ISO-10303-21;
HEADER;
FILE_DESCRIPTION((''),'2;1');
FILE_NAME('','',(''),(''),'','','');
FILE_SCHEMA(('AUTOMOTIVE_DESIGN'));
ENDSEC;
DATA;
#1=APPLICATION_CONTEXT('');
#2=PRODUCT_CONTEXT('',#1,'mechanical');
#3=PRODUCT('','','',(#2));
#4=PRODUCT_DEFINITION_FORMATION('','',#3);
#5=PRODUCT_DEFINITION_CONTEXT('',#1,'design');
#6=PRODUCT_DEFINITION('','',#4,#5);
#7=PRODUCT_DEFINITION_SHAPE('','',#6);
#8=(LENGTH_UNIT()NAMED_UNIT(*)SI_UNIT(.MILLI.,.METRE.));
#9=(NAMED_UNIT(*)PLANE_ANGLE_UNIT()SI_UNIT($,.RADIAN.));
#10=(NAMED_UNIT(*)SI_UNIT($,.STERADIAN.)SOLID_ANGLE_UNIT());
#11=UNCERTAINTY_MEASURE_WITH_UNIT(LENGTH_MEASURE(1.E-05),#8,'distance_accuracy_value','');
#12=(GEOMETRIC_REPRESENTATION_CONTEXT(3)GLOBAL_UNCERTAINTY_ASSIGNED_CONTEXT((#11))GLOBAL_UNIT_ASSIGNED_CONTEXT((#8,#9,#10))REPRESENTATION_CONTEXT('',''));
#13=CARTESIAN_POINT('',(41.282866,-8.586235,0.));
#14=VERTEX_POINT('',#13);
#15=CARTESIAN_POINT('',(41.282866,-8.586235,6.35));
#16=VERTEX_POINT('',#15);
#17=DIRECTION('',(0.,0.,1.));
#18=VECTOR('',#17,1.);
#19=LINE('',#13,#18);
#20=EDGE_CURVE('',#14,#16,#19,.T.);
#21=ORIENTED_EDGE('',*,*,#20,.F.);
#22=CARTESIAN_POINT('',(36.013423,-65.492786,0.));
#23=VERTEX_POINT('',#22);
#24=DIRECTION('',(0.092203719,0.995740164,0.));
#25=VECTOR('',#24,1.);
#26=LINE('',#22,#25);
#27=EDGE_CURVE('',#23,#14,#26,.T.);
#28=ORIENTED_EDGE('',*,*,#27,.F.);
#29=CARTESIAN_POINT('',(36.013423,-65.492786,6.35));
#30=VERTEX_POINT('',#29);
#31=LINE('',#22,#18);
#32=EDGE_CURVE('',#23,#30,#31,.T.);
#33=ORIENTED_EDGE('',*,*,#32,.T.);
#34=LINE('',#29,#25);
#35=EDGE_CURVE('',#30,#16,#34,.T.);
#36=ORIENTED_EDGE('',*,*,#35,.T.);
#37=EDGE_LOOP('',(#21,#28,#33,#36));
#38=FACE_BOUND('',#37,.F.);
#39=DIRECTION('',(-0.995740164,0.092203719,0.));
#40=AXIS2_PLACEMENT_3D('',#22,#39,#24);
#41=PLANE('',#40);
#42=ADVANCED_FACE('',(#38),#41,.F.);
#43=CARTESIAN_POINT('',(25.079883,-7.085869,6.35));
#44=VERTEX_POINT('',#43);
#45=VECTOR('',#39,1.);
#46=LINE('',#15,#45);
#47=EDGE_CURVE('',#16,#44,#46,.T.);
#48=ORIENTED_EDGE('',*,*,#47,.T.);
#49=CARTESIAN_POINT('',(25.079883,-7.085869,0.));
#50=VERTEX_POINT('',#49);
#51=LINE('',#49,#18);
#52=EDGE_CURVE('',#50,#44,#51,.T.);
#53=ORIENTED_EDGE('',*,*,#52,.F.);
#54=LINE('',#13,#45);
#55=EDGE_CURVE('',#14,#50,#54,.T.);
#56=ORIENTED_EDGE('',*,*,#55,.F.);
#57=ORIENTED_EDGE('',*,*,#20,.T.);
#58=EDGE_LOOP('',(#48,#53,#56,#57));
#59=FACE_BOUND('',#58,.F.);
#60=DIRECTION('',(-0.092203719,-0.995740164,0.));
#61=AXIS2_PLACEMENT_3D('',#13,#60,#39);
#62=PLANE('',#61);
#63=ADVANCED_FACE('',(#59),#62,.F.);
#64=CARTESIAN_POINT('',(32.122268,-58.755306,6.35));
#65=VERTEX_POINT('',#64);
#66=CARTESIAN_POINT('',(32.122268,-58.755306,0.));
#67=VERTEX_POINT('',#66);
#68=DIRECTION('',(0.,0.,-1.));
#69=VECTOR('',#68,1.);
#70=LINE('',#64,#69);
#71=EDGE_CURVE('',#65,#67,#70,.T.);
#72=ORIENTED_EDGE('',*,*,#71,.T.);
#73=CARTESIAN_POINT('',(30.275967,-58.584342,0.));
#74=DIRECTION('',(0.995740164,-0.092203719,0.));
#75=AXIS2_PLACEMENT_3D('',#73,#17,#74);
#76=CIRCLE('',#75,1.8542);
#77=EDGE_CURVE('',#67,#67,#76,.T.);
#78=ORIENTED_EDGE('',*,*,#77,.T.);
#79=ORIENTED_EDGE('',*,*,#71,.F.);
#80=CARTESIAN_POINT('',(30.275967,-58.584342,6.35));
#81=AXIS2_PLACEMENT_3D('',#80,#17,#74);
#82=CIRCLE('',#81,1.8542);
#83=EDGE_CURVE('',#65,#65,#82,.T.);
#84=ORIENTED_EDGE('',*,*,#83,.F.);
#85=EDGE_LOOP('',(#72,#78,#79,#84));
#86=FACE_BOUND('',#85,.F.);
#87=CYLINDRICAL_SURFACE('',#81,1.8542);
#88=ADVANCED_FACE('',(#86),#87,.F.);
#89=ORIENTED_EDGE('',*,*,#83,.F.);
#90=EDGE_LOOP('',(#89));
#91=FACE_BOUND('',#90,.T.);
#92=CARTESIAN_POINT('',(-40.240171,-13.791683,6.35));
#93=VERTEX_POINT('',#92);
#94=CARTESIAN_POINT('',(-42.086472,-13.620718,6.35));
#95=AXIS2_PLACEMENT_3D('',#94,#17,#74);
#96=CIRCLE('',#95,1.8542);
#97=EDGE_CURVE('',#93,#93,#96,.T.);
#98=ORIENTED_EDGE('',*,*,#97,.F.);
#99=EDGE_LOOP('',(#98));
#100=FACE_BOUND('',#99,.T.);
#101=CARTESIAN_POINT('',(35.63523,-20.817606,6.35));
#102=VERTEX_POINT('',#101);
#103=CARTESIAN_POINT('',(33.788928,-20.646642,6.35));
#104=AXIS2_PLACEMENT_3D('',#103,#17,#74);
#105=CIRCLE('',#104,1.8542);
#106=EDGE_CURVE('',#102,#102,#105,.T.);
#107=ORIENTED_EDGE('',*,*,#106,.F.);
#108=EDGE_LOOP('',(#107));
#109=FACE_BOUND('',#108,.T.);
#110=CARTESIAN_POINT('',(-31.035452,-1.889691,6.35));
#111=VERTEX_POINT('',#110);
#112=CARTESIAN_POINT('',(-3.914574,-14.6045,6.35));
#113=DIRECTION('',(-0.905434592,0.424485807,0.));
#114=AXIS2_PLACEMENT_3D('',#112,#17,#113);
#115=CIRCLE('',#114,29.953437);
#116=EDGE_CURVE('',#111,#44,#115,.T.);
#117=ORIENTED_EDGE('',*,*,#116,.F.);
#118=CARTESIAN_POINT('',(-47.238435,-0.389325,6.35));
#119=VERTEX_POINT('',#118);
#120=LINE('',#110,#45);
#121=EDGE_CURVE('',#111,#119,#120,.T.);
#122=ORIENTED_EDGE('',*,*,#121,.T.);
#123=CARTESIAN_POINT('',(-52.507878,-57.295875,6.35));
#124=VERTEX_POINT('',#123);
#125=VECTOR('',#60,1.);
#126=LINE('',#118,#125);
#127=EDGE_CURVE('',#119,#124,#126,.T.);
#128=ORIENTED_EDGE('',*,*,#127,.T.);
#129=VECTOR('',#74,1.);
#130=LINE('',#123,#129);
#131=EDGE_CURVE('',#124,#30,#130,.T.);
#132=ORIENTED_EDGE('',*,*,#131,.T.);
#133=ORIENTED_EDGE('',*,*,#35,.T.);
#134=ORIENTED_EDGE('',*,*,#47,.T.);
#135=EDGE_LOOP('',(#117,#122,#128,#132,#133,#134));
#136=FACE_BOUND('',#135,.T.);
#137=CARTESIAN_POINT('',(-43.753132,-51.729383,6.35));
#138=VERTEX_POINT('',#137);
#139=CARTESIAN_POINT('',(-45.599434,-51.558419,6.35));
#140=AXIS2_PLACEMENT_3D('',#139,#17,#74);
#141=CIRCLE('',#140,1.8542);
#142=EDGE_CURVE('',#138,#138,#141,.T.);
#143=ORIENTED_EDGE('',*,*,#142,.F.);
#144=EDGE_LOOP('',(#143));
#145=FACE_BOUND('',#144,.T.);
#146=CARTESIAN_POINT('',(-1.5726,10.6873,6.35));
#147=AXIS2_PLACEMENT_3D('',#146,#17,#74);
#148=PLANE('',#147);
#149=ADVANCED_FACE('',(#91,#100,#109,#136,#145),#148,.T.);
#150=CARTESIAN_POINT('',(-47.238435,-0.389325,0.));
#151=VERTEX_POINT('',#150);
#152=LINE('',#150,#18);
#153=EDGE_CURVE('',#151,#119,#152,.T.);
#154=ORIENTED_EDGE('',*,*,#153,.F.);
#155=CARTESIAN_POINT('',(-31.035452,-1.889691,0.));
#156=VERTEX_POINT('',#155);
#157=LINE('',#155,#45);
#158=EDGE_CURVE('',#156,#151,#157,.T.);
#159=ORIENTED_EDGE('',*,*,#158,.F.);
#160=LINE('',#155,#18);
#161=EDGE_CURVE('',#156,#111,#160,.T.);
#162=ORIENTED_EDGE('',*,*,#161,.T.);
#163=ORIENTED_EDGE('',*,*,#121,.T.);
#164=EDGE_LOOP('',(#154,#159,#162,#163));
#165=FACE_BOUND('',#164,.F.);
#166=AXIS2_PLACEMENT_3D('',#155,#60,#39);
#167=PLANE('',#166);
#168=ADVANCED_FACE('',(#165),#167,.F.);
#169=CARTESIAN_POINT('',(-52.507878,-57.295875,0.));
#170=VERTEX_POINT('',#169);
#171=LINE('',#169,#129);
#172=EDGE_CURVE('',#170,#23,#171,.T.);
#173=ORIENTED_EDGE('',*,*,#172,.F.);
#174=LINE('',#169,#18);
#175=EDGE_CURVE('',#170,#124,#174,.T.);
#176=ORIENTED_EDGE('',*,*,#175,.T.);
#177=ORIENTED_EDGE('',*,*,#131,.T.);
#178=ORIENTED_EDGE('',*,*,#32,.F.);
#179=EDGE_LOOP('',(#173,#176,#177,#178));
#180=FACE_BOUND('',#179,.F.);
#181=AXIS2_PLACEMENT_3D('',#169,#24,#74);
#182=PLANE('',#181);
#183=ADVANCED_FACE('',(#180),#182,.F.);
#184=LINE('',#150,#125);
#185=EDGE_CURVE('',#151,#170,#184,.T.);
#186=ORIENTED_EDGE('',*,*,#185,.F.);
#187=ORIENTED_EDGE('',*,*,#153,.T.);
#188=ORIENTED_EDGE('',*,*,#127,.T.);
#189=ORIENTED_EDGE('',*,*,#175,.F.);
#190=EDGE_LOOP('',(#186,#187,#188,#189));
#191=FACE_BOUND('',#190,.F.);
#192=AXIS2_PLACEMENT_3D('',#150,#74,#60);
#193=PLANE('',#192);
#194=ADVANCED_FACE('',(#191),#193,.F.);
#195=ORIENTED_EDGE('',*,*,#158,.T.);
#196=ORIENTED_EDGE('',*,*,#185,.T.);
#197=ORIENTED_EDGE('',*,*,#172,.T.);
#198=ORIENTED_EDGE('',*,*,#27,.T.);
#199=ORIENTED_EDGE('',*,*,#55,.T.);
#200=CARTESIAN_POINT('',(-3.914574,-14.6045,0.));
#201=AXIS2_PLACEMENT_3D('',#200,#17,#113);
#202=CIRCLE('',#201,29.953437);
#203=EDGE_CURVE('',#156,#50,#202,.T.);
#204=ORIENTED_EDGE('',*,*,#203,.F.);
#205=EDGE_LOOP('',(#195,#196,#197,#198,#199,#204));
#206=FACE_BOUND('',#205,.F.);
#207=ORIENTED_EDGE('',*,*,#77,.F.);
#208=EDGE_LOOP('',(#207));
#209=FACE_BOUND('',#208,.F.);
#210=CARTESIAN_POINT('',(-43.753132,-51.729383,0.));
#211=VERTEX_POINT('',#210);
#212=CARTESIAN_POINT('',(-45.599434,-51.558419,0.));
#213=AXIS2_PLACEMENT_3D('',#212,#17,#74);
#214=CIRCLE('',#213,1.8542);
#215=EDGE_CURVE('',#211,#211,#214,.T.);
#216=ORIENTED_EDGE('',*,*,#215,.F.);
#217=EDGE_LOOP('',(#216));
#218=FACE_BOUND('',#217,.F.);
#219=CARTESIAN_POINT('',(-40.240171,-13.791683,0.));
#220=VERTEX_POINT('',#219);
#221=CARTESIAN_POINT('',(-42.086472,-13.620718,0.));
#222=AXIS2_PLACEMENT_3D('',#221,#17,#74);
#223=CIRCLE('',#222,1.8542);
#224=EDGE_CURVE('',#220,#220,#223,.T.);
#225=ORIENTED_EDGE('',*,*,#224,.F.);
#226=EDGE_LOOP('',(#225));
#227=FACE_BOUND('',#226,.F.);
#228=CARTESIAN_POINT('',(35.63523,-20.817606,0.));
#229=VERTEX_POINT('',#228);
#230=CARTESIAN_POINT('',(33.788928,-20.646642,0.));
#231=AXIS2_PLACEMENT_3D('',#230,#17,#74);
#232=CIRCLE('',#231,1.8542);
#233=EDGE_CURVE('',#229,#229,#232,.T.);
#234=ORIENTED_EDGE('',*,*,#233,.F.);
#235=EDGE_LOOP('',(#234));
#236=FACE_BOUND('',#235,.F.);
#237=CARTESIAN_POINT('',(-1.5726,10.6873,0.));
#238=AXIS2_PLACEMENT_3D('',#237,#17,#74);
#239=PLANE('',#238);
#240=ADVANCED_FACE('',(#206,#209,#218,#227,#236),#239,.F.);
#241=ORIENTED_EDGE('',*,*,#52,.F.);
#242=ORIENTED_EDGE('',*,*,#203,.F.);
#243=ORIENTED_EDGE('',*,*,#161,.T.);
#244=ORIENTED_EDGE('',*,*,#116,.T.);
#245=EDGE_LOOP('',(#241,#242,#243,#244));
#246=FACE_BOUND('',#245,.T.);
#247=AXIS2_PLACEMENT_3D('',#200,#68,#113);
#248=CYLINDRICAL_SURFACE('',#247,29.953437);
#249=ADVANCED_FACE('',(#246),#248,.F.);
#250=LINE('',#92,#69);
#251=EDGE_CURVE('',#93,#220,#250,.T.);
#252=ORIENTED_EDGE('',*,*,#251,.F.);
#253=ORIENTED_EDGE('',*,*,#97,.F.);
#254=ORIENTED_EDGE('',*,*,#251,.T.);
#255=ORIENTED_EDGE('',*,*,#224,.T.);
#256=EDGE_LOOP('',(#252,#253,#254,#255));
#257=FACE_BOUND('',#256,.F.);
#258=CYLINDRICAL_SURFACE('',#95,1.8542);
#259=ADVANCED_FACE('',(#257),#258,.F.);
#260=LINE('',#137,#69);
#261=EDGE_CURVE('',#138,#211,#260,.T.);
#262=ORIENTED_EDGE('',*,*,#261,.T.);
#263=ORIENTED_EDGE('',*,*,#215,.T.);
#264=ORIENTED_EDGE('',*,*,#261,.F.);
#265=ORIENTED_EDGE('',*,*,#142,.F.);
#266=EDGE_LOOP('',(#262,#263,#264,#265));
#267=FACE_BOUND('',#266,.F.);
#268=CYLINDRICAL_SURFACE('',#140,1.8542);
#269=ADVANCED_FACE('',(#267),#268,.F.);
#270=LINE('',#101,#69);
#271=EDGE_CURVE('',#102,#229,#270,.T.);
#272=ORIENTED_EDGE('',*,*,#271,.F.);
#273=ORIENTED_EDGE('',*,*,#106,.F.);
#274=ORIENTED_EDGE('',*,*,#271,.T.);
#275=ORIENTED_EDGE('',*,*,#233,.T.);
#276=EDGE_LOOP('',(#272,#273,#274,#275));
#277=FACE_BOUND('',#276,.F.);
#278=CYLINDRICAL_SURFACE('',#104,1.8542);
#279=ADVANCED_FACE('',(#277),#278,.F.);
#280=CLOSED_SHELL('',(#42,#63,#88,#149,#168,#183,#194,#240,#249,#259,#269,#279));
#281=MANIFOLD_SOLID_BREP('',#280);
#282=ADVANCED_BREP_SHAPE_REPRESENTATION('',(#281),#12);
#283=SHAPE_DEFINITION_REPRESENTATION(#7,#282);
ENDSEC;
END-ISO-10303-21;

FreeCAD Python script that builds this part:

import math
import FreeCAD as App
import Part
import Sketcher
Q = App.Units.Quantity

doc = App.newDocument("Part")
body = doc.addObject("PartDesign::Body", "Body")

sketch1 = doc.addObject("Sketcher::SketchObject", "Sketch")
body.addObject(sketch1)
sketch1.AttachmentSupport = (doc.XY_Plane, [""])
sketch1.MapMode = "FlatFace"
sketch1.addGeometry(Part.ArcOfCircle(Part.Circle(App.Vector(-3.914574, -14.6045, 0), App.Vector(0, 0, 1), 29.953437), math.radians(154.881879), math.radians(374.537325)), False)
sketch1.addGeometry(Part.LineSegment(App.Vector(-31.035452, -1.889691, 0), App.Vector(-47.238435, -0.389325, 0)), False)
sketch1.addGeometry(Part.LineSegment(App.Vector(-47.238435, -0.389325, 0), App.Vector(-52.507878, -57.295875, 0)), False)
sketch1.addGeometry(Part.LineSegment(App.Vector(-52.507878, -57.295875, 0), App.Vector(36.013423, -65.492786, 0)), False)
sketch1.addGeometry(Part.LineSegment(App.Vector(36.013423, -65.492786, 0), App.Vector(41.282866, -8.586235, 0)), False)
sketch1.addGeometry(Part.LineSegment(App.Vector(41.282866, -8.586235, 0), App.Vector(25.079883, -7.085869, 0)), False)
sketch1.addConstraint(Sketcher.Constraint("Coincident", 0, 1, 1, 1))
sketch1.addConstraint(Sketcher.Constraint("Coincident", 1, 2, 2, 1))
sketch1.addConstraint(Sketcher.Constraint("Coincident", 2, 2, 3, 1))
sketch1.addConstraint(Sketcher.Constraint("Coincident", 3, 2, 4, 1))
sketch1.addConstraint(Sketcher.Constraint("Coincident", 4, 2, 5, 1))
sketch1.addConstraint(Sketcher.Constraint("Coincident", 5, 2, 0, 2))
sketch1.addConstraint(Sketcher.Constraint("Perpendicular", 1, 2))
sketch1.addConstraint(Sketcher.Constraint("Perpendicular", 2, 3))
sketch1.addConstraint(Sketcher.Constraint("Perpendicular", 3, 4))
sketch1.addConstraint(Sketcher.Constraint("Perpendicular", 4, 5))
sketch1.addConstraint(Sketcher.Constraint("Equal", 2, 4))
sketch1.addConstraint(Sketcher.Constraint("Equal", 1, 5))
sketch1.addConstraint(Sketcher.Constraint("Distance", 3, Q("3.5 in")))
sketch1.addConstraint(Sketcher.Constraint("Distance", 2, Q("2.25 in")))
sketch1.addConstraint(Sketcher.Constraint("Radius", 0, Q("29.9534 mm")))
sketch1.addConstraint(Sketcher.Constraint("Angle", 1, Q("174.7096 deg")))
sketch1.addConstraint(Sketcher.Constraint("DistanceY", 0, 3, 5, 2, Q("0.296 in")))
sketch1.addConstraint(Sketcher.Constraint("DistanceY", 0, 1, -1, 1, Q("0.0744 in")))
sketch1.addConstraint(Sketcher.Constraint("DistanceX", -1, 1, 4, 2, Q("1.6253 in")))
pad1 = doc.addObject("PartDesign::Pad", "Pad")
body.addObject(pad1)
pad1.Profile = sketch1
pad1.Length = Q("0.25 in")

sketch2 = doc.addObject("Sketcher::SketchObject", "Sketch001")
body.addObject(sketch2)
sketch2.AttachmentSupport = (doc.XY_Plane, [""])
sketch2.MapMode = "FlatFace"
sketch2.AttachmentOffset = App.Placement(App.Vector(0, 0, 0.25 * 25.4), App.Rotation())
sketch2.addGeometry(Part.Circle(App.Vector(-45.599434, -51.558419, 0), App.Vector(0, 0, 1), 1.8542), False)
sketch2.addGeometry(Part.Circle(App.Vector(30.275967, -58.584342, 0), App.Vector(0, 0, 1), 1.8542), False)
sketch2.addGeometry(Part.Circle(App.Vector(-42.086472, -13.620718, 0), App.Vector(0, 0, 1), 1.8542), False)
sketch2.addGeometry(Part.Circle(App.Vector(33.788928, -20.646642, 0), App.Vector(0, 0, 1), 1.8542), False)
sketch2.addConstraint(Sketcher.Constraint("Equal", 0, 1))
sketch2.addConstraint(Sketcher.Constraint("Equal", 1, 2))
sketch2.addConstraint(Sketcher.Constraint("Equal", 2, 3))
sketch2.addConstraint(Sketcher.Constraint("Diameter", 0, Q("0.146 in")))
sketch2.addConstraint(Sketcher.Constraint("DistanceY", 0, 3, 3, 3, Q("1.217 in")))
sketch2.addConstraint(Sketcher.Constraint("DistanceY", 1, 3, 0, 3, Q("0.2766 in")))
sketch2.addConstraint(Sketcher.Constraint("DistanceX", 0, 3, 2, 3, Q("0.1383 in")))
sketch2.addConstraint(Sketcher.Constraint("DistanceY", 0, 3, 2, 3, Q("1.4936 in")))
sketch2.addConstraint(Sketcher.Constraint("DistanceX", 1, 3, 3, 3, Q("0.1383 in")))
sketch2.addConstraint(Sketcher.Constraint("DistanceX", 0, 3, -1, 1, Q("45.5994 mm")))
sketch2.addConstraint(Sketcher.Constraint("DistanceY", 0, 3, -1, 1, Q("51.5584 mm")))
sketch2.addConstraint(Sketcher.Constraint("DistanceX", -1, 1, 1, 3, Q("30.276 mm")))
pocket1 = doc.addObject("PartDesign::Pocket", "Pocket")
body.addObject(pocket1)
pocket1.Profile = sketch2
pocket1.Type = "ThroughAll"

doc.recompute()
